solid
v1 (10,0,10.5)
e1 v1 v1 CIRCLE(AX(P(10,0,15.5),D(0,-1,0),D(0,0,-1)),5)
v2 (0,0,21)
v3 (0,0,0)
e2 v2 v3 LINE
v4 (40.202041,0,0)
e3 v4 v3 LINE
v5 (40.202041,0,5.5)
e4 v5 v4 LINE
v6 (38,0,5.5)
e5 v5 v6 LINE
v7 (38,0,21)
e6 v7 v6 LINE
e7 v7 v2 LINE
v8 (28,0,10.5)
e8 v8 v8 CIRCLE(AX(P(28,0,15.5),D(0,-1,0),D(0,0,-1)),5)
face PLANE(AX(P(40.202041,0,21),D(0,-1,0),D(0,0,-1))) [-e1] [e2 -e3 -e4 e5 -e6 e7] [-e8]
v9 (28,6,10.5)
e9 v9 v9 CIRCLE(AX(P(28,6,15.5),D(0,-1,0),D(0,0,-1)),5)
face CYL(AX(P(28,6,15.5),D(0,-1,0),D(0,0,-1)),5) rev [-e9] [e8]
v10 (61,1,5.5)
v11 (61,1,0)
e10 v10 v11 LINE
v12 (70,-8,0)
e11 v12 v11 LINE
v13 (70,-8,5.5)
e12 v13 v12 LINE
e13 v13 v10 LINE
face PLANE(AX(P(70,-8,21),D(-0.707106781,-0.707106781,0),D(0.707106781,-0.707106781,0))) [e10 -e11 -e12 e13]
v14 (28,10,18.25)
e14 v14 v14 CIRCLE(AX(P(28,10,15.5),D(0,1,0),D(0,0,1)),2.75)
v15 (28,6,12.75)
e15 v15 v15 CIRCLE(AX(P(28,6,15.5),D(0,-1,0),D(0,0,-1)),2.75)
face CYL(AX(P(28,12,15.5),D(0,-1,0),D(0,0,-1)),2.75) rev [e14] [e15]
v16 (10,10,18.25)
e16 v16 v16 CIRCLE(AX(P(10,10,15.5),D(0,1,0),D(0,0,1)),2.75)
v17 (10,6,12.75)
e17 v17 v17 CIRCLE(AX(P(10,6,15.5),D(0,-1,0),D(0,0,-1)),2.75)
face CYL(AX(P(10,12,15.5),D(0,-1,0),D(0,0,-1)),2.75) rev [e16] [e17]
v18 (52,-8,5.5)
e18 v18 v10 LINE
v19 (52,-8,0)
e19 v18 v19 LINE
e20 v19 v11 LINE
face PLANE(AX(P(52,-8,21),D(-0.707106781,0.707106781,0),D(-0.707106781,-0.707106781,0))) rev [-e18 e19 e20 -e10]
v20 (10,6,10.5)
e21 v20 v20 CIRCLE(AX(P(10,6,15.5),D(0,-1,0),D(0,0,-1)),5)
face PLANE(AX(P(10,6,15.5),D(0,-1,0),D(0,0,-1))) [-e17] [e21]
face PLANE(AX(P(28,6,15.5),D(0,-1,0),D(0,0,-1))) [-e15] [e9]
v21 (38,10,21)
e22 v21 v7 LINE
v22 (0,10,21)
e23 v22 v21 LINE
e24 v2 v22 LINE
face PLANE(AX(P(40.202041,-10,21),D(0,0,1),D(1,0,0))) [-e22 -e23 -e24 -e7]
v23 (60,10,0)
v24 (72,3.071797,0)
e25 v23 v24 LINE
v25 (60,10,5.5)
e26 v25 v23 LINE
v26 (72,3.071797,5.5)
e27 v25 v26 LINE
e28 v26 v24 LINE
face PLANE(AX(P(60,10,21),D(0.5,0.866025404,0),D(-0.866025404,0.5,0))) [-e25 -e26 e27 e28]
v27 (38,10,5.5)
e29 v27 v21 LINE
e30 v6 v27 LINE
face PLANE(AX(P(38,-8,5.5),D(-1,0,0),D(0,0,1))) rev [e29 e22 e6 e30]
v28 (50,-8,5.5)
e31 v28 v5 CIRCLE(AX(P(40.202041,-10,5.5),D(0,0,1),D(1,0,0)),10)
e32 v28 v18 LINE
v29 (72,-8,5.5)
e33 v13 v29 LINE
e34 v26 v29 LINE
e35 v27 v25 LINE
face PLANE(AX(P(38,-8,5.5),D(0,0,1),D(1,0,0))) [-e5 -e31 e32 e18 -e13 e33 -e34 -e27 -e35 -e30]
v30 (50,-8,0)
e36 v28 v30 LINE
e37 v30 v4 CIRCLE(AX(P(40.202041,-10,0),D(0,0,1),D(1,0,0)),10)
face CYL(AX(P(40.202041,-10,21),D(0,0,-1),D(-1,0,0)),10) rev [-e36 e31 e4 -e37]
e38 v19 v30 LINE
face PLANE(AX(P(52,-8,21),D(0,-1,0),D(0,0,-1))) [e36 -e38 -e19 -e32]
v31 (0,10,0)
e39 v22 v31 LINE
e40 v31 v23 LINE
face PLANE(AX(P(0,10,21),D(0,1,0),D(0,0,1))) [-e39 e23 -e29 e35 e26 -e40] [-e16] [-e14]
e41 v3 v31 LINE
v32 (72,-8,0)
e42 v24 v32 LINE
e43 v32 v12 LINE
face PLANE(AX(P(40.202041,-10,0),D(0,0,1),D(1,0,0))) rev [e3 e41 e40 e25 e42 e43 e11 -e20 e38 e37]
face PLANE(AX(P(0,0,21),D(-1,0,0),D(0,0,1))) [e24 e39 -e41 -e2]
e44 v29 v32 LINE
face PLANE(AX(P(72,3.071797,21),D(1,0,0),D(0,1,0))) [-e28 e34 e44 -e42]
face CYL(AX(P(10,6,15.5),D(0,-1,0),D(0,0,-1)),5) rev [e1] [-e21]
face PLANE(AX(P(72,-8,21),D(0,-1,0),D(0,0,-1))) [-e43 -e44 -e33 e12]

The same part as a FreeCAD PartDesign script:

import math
import FreeCAD as App
import Part
import Sketcher

V = App.Vector
Q = App.Units.Quantity


def add_polygon(sketch, points):
    """Adds a closed chain of lines whose ends are joined by coincident constraints."""
    first, n = sketch.GeometryCount, len(points)
    for a, b in zip(points, points[1:] + points[:1]):
        sketch.addGeometry(Part.LineSegment(App.Vector(*a, 0), App.Vector(*b, 0)), False)
    for i in range(n):
        sketch.addConstraint(Sketcher.Constraint("Coincident", first + i, 2, first + (i + 1) % n, 1))

doc = App.newDocument("Part")
body = doc.addObject("PartDesign::Body", "Body")

sketch1 = body.newObject("Sketcher::SketchObject", "Sketch")
sketch1.AttachmentSupport = (doc.getObject("XY_Plane"), [""])
sketch1.MapMode = "FlatFace"
sketch1.addGeometry([
    Part.LineSegment(V(0, 10, 0), V(0, 0, 0)),
    Part.LineSegment(V(0, 0, 0), V(40.2, 0, 0)),
    Part.ArcOfCircle(Part.Circle(V(40.2, -10, 0), V(0, 0, 1), 10), math.radians(12), math.radians(90)),
    Part.LineSegment(V(50, -8, 0), V(52, -8, 0)),
    Part.LineSegment(V(52, -8, 0), V(61, 1, 0)),
    Part.LineSegment(V(61, 1, 0), V(70, -8, 0)),
    Part.LineSegment(V(70, -8, 0), V(72, -8, 0)),
    Part.LineSegment(V(72, -8, 0), V(72, 3.1, 0)),
    Part.LineSegment(V(72, 3.1, 0), V(60, 10, 0)),
    Part.LineSegment(V(60, 10, 0), V(0, 10, 0)),
], False)
sketch1.addConstraint([
    Sketcher.Constraint("Coincident", 0, 2, 1, 1),
    Sketcher.Constraint("Tangent", 1, 2, 2, 2),
    Sketcher.Constraint("Coincident", 2, 1, 3, 1),
    Sketcher.Constraint("Coincident", 3, 2, 4, 1),
    Sketcher.Constraint("Coincident", 4, 2, 5, 1),
    Sketcher.Constraint("Coincident", 5, 2, 6, 1),
    Sketcher.Constraint("Coincident", 6, 2, 7, 1),
    Sketcher.Constraint("Coincident", 7, 2, 8, 1),
    Sketcher.Constraint("Coincident", 8, 2, 9, 1),
    Sketcher.Constraint("Coincident", 9, 2, 0, 1),
    Sketcher.Constraint("Vertical", 0),
    Sketcher.Constraint("Horizontal", 1),
    Sketcher.Constraint("Horizontal", 3),
    Sketcher.Constraint("Horizontal", 6),
    Sketcher.Constraint("Vertical", 7),
    Sketcher.Constraint("Horizontal", 9),
    Sketcher.Constraint("Coincident", 0, 2, -1, 1),
    Sketcher.Constraint("Perpendicular", 4, 5),
    Sketcher.Constraint("Horizontal", 3, 2, 5, 2),
    Sketcher.Constraint("Equal", 3, 6),
    Sketcher.Constraint("Equal", 4, 5),
    Sketcher.Constraint("Radius", 2, 10.0),
    Sketcher.Constraint("DistanceX", 3, 1, 3, 2, 2.0),
    Sketcher.Constraint("DistanceX", 9, 2, 9, 1, 60.0),
    Sketcher.Constraint("DistanceY", 0, 2, 0, 1, 10.0),
    Sketcher.Constraint("Angle", 8, Q("150 deg")),
    Sketcher.Constraint("DistanceX", -1, 1, 2, 1, 50.0),
    Sketcher.Constraint("DistanceY", 2, 1, -1, 1, 8.0),
    Sketcher.Constraint("DistanceX", -1, 1, 4, 2, 61.0),
])
pad1 = body.newObject("PartDesign::Pad", "Pad")
pad1.Profile = sketch1
pad1.Length = 21

sketch2 = body.newObject("Sketcher::SketchObject", "Sketch001")
sketch2.AttachmentSupport = (doc.getObject("XZ_Plane"), [""])
sketch2.MapMode = "FlatFace"
sketch2.AttachmentOffset = App.Placement(V(0, 0, -10), App.Rotation())
add_polygon(sketch2, [(94, 26), (94, 6), (38, 6), (38, 26)])
sketch2.addConstraint([
    Sketcher.Constraint("Vertical", 0),
    Sketcher.Constraint("Horizontal", 1),
    Sketcher.Constraint("Vertical", 2),
    Sketcher.Constraint("Horizontal", 3),
    Sketcher.Constraint("DistanceX", -1, 1, 1, 2, 38.0),
    Sketcher.Constraint("DistanceY", -1, 1, 0, 2, 5.5),
    Sketcher.Constraint("DistanceX", 1, 2, 1, 1, 56.00238),
    Sketcher.Constraint("DistanceY", 0, 2, 0, 1, 20.539257),
])
pocket1 = body.newObject("PartDesign::Pocket", "Pocket")
pocket1.Profile = sketch2
pocket1.Type = "ThroughAll"
pocket1.Reversed = True

sketch3 = body.newObject("Sketcher::SketchObject", "Sketch002")
sketch3.AttachmentSupport = (doc.getObject("XZ_Plane"), [""])
sketch3.MapMode = "FlatFace"
sketch3.addGeometry([
    Part.Circle(V(28, 16, 0), V(0, 0, 1), 5),
    Part.Circle(V(10, 16, 0), V(0, 0, 1), 5),
], False)
sketch3.addConstraint([
    Sketcher.Constraint("Equal", 0, 1),
    Sketcher.Constraint("Horizontal", 0, 3, 1, 3),
    Sketcher.Constraint("Diameter", 0, 10.0),
    Sketcher.Constraint("DistanceX", -1, 1, 0, 3, 28.0),
    Sketcher.Constraint("DistanceX", -1, 1, 1, 3, 10.0),
    Sketcher.Constraint("DistanceY", -1, 1, 0, 3, 15.5),
])
pocket2 = body.newObject("PartDesign::Pocket", "Pocket001")
pocket2.Profile = sketch3
pocket2.Length = 6

sketch4 = body.newObject("Sketcher::SketchObject", "Sketch003")
sketch4.AttachmentSupport = (doc.getObject("XZ_Plane"), [""])
sketch4.MapMode = "FlatFace"
sketch4.AttachmentOffset = App.Placement(V(0, 0, -6), App.Rotation())
sketch4.addGeometry([
    Part.Circle(V(28, 15.5, 0), V(0, 0, 1), 2.8),
    Part.Circle(V(10, 15.5, 0), V(0, 0, 1), 2.8),
], False)
sketch4.addConstraint([
    Sketcher.Constraint("Equal", 0, 1),
    Sketcher.Constraint("Horizontal", 0, 3, 1, 3),
    Sketcher.Constraint("Diameter", 0, 5.5),
    Sketcher.Constraint("DistanceX", -1, 1, 0, 3, 28.0),
    Sketcher.Constraint("DistanceX", -1, 1, 1, 3, 10.0),
    Sketcher.Constraint("DistanceY", -1, 1, 0, 3, 15.5),
])
pocket3 = body.newObject("PartDesign::Pocket", "Pocket002")
pocket3.Profile = sketch4
pocket3.Length = 6

doc.recompute()
